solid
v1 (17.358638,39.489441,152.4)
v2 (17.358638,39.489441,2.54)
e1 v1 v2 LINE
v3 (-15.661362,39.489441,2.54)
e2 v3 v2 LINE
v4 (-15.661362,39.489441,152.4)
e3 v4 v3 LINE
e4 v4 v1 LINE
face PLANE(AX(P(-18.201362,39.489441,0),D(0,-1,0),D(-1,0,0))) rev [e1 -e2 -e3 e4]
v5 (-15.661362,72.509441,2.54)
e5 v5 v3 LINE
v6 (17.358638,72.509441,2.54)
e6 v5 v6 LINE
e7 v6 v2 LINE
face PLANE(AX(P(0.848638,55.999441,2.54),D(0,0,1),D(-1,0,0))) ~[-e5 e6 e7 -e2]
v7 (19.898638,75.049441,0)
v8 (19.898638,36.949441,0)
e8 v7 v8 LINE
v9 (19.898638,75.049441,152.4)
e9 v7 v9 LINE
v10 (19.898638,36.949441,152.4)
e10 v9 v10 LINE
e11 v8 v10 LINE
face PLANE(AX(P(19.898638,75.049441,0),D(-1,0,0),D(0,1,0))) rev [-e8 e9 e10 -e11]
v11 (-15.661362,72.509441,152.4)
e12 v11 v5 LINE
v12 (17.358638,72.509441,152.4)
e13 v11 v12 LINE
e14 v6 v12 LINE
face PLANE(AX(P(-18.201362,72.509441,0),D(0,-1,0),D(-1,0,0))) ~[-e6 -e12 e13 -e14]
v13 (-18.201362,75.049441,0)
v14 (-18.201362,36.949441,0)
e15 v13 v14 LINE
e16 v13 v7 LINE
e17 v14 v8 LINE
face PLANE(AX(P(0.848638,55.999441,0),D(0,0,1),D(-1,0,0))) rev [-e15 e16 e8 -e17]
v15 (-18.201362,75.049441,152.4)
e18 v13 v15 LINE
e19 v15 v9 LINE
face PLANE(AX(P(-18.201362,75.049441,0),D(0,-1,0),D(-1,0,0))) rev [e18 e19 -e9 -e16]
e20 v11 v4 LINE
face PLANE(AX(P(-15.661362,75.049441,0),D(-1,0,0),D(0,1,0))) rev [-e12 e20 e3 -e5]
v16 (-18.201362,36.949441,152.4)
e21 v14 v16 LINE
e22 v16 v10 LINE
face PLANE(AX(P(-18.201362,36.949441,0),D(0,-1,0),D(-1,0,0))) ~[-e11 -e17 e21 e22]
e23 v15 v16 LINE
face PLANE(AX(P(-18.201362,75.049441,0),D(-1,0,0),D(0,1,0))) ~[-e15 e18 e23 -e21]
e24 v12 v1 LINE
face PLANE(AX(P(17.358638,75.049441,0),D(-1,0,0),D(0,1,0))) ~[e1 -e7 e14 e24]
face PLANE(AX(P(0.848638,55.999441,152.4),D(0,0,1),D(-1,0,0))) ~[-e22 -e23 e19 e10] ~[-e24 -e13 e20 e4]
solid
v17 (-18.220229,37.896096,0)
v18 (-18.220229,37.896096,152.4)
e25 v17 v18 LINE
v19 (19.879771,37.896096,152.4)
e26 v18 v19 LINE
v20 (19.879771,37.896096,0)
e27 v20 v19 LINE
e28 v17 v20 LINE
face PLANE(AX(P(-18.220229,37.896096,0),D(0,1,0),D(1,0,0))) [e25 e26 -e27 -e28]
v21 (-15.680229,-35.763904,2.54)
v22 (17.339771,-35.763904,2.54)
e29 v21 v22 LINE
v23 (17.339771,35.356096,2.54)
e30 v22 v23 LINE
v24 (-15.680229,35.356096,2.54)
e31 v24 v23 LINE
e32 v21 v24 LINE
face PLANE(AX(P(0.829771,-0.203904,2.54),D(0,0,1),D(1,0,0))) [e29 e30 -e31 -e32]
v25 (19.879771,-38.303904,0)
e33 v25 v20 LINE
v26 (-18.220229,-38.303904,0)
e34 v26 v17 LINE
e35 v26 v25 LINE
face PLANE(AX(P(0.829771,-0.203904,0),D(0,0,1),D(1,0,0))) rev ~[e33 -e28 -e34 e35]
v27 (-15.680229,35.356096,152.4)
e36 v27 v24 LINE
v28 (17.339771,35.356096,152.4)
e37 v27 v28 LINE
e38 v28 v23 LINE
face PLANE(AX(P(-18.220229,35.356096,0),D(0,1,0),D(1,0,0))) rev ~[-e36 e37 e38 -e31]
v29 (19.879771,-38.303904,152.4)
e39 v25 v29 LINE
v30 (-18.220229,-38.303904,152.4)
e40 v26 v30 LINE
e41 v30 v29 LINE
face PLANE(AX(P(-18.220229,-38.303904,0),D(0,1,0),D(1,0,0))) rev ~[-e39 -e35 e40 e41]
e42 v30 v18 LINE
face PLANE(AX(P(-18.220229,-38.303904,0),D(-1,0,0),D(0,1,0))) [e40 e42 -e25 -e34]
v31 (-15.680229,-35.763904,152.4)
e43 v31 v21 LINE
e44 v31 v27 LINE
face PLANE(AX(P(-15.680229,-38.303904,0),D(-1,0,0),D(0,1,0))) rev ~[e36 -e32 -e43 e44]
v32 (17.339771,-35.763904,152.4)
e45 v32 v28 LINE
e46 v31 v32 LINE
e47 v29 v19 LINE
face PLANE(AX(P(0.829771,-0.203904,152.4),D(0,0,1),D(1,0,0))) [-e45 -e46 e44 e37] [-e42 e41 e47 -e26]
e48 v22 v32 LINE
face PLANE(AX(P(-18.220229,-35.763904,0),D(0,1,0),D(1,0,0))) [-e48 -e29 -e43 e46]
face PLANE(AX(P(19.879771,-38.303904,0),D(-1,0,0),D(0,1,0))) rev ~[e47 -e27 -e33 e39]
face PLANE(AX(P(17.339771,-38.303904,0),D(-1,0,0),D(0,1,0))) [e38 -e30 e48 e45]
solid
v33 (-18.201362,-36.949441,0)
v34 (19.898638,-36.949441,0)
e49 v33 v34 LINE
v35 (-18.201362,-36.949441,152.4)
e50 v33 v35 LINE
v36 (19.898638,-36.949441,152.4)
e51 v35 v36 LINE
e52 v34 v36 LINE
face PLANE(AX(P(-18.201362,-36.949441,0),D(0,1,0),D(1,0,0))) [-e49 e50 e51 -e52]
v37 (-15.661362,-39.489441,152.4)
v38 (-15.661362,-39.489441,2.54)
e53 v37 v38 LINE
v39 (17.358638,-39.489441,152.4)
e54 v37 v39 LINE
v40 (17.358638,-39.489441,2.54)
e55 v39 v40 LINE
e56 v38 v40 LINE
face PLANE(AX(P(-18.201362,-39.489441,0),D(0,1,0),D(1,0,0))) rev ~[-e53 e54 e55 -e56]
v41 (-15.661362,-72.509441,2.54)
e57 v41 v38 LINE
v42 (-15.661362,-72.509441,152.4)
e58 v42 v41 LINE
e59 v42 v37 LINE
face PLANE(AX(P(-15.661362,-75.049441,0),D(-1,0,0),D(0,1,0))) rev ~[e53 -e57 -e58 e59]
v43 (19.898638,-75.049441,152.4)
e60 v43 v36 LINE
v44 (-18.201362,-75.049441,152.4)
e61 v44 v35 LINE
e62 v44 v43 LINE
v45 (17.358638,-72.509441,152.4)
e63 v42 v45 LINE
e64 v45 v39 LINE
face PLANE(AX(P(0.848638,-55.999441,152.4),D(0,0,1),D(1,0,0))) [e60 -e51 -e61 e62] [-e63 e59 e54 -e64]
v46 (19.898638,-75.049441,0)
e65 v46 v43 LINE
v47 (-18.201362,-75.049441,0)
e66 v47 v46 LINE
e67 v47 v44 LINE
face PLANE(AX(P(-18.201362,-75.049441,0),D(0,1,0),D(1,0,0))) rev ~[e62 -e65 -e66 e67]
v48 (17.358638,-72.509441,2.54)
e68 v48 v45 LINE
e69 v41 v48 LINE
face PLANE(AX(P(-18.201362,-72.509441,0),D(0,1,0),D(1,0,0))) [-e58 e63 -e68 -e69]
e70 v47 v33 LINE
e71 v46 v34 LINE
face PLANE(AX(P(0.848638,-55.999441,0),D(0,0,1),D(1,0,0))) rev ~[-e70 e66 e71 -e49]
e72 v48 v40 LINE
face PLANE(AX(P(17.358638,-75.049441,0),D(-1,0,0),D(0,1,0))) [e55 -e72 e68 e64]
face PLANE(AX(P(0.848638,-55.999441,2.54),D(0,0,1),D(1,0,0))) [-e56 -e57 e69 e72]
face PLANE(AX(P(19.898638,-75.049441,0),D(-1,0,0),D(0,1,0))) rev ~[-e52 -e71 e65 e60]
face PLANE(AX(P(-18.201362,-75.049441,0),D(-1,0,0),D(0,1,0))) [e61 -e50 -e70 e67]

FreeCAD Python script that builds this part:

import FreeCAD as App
import Part
import Sketcher
from FreeCAD import Vector
Q = App.Units.Quantity


def faces_at(feature, points):
    """Names of the faces that lie closest to the given points."""
    faces = feature.Shape.Faces
    near = lambda p: min(range(len(faces)), key=lambda i: faces[i].distToShape(Part.Vertex(*p))[0])
    return sorted({f"Face{near(p) + 1}" for p in points})

doc = App.newDocument("Part")
body = doc.addObject("PartDesign::Body", "Body")

# Sketch on XY plane
sketch1 = body.newObject("Sketcher::SketchObject", "Sketch")
sketch1.AttachmentSupport = (doc.getObject("XY_Plane"), [""])
sketch1.MapMode = "FlatFace"
sketch1.addGeometry([
    Part.LineSegment(Vector(-18, -37, 0), Vector(-18, -75, 0)),
    Part.LineSegment(Vector(-18, -75, 0), Vector(20, -75, 0)),
    Part.LineSegment(Vector(20, -75, 0), Vector(20, -37, 0)),
    Part.LineSegment(Vector(20, -37, 0), Vector(-18, -37, 0)),
], False)
sketch1.addConstraint([
    Sketcher.Constraint("Coincident", 0, 2, 1, 1),
    Sketcher.Constraint("Coincident", 1, 2, 2, 1),
    Sketcher.Constraint("Coincident", 2, 2, 3, 1),
    Sketcher.Constraint("Coincident", 3, 2, 0, 1),
    Sketcher.Constraint("Vertical", 0),
    Sketcher.Constraint("Horizontal", 1),
    Sketcher.Constraint("Vertical", 2),
    Sketcher.Constraint("Horizontal", 3),
    Sketcher.Constraint("Equal", 3, 0),
    Sketcher.Constraint("DistanceX", 1, 1, 1, 2, Q("1.5 in")),
    Sketcher.Constraint("DistanceX", 0, 2, -1, 1, 18.201362),
    Sketcher.Constraint("DistanceY", 0, 2, -1, 1, 75.049441),
])
pad1 = body.newObject("PartDesign::Pad", "Pad")
pad1.Profile = sketch1
pad1.Length = Q("6 in")
doc.recompute()

thickness = body.newObject("PartDesign::Thickness", "Thickness")
thickness.Base = (pad1, faces_at(pad1, [(0.849, -55.999, 152.4)]))
thickness.Value = Q("0.1 in")
thickness.Reversed = True
thickness.Join = "Arc"
body2 = doc.addObject("PartDesign::Body", "Body001")
doc.recompute()

mirroring = doc.addObject("Part::Mirroring", "Mirroring")
mirroring.Source = body
mirroring.Base = Vector(0, 0, 0)
mirroring.Normal = Vector(0, -1, 0)
body2.BaseFeature = mirroring
doc.recompute()
body3 = doc.addObject("PartDesign::Body", "Body002")

# Sketch on XY plane
sketch2 = body3.newObject("Sketcher::SketchObject", "Sketch001")
sketch2.AttachmentSupport = (doc.getObject("XY_Plane002"), [""])
sketch2.MapMode = "FlatFace"
sketch2.addGeometry([
    Part.LineSegment(Vector(-18, 38, 0), Vector(-18, -38, 0)),
    Part.LineSegment(Vector(-18, -38, 0), Vector(20, -38, 0)),
    Part.LineSegment(Vector(20, -38, 0), Vector(20, 38, 0)),
    Part.LineSegment(Vector(20, 38, 0), Vector(-18, 38, 0)),
], False)
sketch2.addConstraint([
    Sketcher.Constraint("Coincident", 0, 2, 1, 1),
    Sketcher.Constraint("Coincident", 1, 2, 2, 1),
    Sketcher.Constraint("Coincident", 2, 2, 3, 1),
    Sketcher.Constraint("Coincident", 3, 2, 0, 1),
    Sketcher.Constraint("Vertical", 0),
    Sketcher.Constraint("Horizontal", 1),
    Sketcher.Constraint("Vertical", 2),
    Sketcher.Constraint("Horizontal", 3),
    Sketcher.Constraint("DistanceY", 0, 2, 0, 1, Q("3 in")),
    Sketcher.Constraint("DistanceX", 1, 1, 1, 2, Q("1.5 in")),
    Sketcher.Constraint("DistanceX", 0, 2, -1, 1, 18.220229),
    Sketcher.Constraint("DistanceY", 0, 2, -1, 1, 38.303904),
])
pad2 = body3.newObject("PartDesign::Pad", "Pad001")
pad2.Profile = sketch2
pad2.Length = Q("6 in")
doc.recompute()

thickness2 = body3.newObject("PartDesign::Thickness", "Thickness001")
thickness2.Base = (pad2, faces_at(pad2, [(0.83, -0.204, 152.4)]))
thickness2.Value = Q("0.1 in")
thickness2.Reversed = True
thickness2.Join = "Arc"
mirroring.Visibility = False

doc.recompute()
